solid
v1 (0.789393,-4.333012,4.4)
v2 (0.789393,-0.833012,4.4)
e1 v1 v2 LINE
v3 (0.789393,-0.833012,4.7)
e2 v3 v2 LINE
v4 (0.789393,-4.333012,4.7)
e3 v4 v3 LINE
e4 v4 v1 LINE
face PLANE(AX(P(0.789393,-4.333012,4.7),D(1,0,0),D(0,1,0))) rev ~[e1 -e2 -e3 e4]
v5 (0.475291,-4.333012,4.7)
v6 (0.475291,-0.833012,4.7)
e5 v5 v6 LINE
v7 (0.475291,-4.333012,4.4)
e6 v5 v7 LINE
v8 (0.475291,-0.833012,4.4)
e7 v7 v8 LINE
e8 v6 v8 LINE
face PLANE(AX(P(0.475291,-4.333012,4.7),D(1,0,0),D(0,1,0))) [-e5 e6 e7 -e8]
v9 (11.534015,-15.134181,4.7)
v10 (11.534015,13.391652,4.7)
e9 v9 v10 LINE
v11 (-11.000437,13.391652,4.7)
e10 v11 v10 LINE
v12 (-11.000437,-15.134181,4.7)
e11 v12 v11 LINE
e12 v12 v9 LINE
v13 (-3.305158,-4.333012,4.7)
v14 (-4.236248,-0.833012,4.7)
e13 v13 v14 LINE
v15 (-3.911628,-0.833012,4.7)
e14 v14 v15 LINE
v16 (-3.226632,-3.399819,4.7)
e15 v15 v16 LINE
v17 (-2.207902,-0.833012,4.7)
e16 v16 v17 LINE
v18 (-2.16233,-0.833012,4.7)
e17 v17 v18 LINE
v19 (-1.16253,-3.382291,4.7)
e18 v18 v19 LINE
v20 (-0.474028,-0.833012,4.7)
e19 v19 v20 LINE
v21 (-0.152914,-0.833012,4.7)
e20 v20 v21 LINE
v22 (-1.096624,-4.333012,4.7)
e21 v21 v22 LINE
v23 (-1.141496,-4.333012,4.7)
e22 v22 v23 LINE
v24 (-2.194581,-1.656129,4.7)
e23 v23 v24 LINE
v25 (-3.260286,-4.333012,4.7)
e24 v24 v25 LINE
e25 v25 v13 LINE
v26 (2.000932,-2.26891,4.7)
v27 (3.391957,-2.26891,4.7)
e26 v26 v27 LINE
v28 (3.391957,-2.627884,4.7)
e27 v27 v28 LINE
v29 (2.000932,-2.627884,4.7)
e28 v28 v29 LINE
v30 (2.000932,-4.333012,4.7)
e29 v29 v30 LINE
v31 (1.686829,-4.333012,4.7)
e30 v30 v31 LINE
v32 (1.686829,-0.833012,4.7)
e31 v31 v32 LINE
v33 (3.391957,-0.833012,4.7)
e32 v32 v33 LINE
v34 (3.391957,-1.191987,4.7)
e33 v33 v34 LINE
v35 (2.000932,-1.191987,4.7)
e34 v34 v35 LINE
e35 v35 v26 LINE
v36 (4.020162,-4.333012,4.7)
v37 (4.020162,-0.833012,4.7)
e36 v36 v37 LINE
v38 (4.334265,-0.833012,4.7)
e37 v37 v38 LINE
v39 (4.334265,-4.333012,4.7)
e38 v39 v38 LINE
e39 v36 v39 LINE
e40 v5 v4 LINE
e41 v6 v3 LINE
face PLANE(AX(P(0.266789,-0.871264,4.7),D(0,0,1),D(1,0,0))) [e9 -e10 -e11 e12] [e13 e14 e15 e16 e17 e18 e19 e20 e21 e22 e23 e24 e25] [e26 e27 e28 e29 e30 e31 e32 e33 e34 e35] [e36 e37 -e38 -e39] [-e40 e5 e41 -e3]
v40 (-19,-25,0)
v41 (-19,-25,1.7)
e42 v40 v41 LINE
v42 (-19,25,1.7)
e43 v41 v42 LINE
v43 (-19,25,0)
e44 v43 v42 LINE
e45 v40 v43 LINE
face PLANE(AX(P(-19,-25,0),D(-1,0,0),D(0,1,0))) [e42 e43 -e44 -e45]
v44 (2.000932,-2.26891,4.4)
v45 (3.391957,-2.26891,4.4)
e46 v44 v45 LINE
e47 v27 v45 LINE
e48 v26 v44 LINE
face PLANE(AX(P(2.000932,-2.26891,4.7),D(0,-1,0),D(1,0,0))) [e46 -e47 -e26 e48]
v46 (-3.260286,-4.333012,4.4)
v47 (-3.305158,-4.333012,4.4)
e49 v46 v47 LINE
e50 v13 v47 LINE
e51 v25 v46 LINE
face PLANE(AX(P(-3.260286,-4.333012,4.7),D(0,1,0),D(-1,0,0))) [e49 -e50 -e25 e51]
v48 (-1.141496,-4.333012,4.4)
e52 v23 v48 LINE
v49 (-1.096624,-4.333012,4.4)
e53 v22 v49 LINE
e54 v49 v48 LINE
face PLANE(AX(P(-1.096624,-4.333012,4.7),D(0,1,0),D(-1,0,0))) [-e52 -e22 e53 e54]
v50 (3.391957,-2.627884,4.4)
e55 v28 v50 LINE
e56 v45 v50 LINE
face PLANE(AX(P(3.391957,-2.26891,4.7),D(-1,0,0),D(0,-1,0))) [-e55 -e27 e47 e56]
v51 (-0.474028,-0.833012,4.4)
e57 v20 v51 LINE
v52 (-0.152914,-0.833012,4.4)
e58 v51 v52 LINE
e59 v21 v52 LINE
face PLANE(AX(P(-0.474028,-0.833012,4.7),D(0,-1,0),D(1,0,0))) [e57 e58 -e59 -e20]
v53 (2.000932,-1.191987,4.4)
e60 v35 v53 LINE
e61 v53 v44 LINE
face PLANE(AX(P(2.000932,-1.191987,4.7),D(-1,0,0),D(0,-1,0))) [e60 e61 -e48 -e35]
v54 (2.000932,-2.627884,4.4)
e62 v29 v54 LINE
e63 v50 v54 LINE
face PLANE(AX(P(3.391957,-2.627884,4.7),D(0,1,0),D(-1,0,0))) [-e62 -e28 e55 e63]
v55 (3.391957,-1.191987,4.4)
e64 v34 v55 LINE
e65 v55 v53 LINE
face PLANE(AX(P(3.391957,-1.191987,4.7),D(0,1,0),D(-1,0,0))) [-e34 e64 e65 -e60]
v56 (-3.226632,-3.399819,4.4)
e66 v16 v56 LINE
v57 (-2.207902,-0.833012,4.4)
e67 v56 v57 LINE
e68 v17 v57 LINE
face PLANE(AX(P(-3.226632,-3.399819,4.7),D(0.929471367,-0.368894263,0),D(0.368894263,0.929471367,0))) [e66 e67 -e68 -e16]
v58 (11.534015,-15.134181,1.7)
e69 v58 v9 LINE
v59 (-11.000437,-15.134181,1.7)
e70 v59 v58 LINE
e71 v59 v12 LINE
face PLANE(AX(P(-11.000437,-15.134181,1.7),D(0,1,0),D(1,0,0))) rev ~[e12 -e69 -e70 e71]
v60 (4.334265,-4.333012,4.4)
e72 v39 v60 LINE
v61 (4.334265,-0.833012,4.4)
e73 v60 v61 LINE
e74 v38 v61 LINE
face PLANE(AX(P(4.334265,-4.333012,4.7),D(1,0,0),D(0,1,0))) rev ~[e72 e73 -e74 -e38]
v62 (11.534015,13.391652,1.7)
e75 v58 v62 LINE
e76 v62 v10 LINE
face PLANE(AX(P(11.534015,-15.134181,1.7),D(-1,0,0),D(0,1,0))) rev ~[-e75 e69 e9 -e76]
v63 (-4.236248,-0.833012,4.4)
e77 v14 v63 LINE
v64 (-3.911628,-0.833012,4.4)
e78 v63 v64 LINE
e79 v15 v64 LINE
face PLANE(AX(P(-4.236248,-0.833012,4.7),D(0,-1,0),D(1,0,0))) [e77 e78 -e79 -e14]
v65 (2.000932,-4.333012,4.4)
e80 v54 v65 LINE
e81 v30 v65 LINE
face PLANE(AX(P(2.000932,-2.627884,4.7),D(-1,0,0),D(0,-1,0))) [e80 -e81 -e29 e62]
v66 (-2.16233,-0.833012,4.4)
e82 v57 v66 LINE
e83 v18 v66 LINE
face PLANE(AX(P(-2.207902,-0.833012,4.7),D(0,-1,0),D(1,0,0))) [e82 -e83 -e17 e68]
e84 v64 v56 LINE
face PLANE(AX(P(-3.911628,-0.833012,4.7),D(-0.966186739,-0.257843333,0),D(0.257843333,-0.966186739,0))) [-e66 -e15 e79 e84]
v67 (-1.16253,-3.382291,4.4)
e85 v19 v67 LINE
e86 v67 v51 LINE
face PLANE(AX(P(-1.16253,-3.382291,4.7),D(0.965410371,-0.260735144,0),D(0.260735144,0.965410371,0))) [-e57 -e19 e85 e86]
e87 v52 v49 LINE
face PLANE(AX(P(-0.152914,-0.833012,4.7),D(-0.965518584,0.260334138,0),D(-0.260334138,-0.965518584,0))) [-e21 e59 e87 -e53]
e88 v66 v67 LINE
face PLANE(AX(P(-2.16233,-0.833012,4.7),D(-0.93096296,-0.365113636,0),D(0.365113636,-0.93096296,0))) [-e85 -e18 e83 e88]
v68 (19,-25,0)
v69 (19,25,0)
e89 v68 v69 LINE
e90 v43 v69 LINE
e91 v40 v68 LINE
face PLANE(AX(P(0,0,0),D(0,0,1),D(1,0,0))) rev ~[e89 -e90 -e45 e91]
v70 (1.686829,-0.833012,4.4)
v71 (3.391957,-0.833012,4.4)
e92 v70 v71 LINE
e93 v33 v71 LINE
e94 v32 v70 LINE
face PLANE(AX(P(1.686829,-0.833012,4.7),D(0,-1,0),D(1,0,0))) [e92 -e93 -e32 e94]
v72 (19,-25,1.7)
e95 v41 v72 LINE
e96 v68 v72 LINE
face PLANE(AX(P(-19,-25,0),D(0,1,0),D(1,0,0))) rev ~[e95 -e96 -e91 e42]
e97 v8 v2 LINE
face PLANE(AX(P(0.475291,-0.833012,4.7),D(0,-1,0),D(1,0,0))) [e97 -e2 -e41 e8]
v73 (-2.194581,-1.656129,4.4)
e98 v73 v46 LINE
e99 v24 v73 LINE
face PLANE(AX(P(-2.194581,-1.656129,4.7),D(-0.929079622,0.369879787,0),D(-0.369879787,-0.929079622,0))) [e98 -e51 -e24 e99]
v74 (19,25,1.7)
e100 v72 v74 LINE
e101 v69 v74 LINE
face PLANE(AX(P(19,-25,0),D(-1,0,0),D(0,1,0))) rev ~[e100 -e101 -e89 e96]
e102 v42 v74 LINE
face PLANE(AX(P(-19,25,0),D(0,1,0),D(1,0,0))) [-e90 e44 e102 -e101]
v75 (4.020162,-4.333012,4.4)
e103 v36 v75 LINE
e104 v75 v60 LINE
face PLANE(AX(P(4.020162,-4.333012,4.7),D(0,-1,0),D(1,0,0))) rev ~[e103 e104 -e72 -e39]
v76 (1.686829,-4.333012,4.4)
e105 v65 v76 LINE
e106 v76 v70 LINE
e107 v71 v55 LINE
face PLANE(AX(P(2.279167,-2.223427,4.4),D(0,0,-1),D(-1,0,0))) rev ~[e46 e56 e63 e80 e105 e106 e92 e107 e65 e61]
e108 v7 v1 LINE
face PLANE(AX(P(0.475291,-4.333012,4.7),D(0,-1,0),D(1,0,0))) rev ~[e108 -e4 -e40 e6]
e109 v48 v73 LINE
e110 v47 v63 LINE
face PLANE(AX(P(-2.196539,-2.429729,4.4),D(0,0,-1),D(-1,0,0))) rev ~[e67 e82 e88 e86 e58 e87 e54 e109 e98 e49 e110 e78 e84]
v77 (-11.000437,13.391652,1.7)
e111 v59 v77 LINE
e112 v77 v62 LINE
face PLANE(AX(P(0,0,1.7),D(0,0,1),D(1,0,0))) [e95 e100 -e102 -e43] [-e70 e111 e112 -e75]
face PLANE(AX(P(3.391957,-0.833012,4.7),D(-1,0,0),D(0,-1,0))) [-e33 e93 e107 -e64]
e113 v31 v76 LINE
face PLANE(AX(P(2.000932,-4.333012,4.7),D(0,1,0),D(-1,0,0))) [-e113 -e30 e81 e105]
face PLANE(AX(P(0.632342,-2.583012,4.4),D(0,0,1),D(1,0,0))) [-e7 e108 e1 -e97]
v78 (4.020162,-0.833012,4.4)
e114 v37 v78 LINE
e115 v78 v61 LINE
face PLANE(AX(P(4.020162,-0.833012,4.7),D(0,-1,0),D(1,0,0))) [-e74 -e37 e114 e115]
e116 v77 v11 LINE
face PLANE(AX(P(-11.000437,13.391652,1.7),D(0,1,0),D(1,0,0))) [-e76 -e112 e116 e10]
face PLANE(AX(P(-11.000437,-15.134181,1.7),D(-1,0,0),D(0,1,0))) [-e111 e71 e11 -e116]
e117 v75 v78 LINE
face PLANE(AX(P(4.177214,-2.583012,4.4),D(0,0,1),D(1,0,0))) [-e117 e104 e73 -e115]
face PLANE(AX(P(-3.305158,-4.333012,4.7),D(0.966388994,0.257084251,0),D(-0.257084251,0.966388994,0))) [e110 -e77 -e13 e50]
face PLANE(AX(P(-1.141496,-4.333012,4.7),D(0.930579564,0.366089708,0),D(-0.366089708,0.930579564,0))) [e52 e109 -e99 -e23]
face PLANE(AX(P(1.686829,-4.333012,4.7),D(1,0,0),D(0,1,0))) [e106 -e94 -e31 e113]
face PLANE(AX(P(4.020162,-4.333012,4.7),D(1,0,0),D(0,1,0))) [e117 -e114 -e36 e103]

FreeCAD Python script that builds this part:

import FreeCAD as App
import Part
import Sketcher

V = App.Vector


def add_polygon(sketch, points):
    """Adds a closed chain of lines whose ends are joined by coincident constraints."""
    first, n = sketch.GeometryCount, len(points)
    for a, b in zip(points, points[1:] + points[:1]):
        sketch.addGeometry(Part.LineSegment(App.Vector(*a, 0), App.Vector(*b, 0)), False)
    for i in range(n):
        sketch.addConstraint(Sketcher.Constraint("Coincident", first + i, 2, first + (i + 1) % n, 1))

doc = App.newDocument("Part")
body = doc.addObject("PartDesign::Body", "Body")

sketch1 = body.newObject("Sketcher::SketchObject", "Sketch")
sketch1.AttachmentSupport = (doc.getObject("XY_Plane"), [""])
sketch1.MapMode = "FlatFace"
add_polygon(sketch1, [(-19, 25), (-19, -25), (19, -25), (19, 25)])
sketch1.addConstraint(Sketcher.Constraint("Vertical", 0))
sketch1.addConstraint(Sketcher.Constraint("Horizontal", 1))
sketch1.addConstraint(Sketcher.Constraint("Vertical", 2))
sketch1.addConstraint(Sketcher.Constraint("Horizontal", 3))
sketch1.addConstraint(Sketcher.Constraint("Symmetric", 0, 2, 2, 2, -1, 1))
sketch1.addConstraint(Sketcher.Constraint("DistanceX", 1, 1, 1, 2, 38.0))
sketch1.addConstraint(Sketcher.Constraint("DistanceY", 0, 2, 0, 1, 50.0))
pad1 = body.newObject("PartDesign::Pad", "Pad")
pad1.Profile = sketch1
pad1.Length = 1.7

sketch2 = body.newObject("Sketcher::SketchObject", "Sketch001")
sketch2.AttachmentSupport = (doc.getObject("XY_Plane"), [""])
sketch2.MapMode = "FlatFace"
sketch2.AttachmentOffset = App.Placement(V(0, 0, 1.7), App.Rotation())
add_polygon(sketch2, [(-11, 13), (-11, -15), (12, -15), (12, 13)])
sketch2.addConstraint(Sketcher.Constraint("Vertical", 0))
sketch2.addConstraint(Sketcher.Constraint("Horizontal", 1))
sketch2.addConstraint(Sketcher.Constraint("Vertical", 2))
sketch2.addConstraint(Sketcher.Constraint("Horizontal", 3))
sketch2.addConstraint(Sketcher.Constraint("DistanceX", 1, 1, 1, 2, 22.534452))
sketch2.addConstraint(Sketcher.Constraint("DistanceY", 0, 2, 0, 1, 28.525833))
sketch2.addConstraint(Sketcher.Constraint("DistanceY", 0, 2, -1, 1, 15.134181))
sketch2.addConstraint(Sketcher.Constraint("DistanceX", 0, 2, -1, 1, 11.000437))
pad2 = body.newObject("PartDesign::Pad", "Pad001")
pad2.Profile = sketch2
pad2.Length = 3

sketch3 = body.newObject("Sketcher::SketchObject", "Sketch002")
sketch3.AttachmentSupport = (doc.getObject("XY_Plane"), [""])
sketch3.MapMode = "FlatFace"
sketch3.AttachmentOffset = App.Placement(V(0, 0, 4.7), App.Rotation())
add_polygon(sketch3, [(-3.912, -0.833), (-4.236, -0.833), (-3.305, -4.333), (-3.26, -4.333), (-2.195, -1.656), (-1.141, -4.333), (-1.097, -4.333), (-0.153, -0.833), (-0.474, -0.833), (-1.163, -3.382), (-2.162, -0.833), (-2.208, -0.833), (-3.227, -3.4)])
add_polygon(sketch3, [(0.475, -0.833), (0.475, -4.333), (0.789, -4.333), (0.789, -0.833)])
add_polygon(sketch3, [(3.392, -0.833), (1.687, -0.833), (1.687, -4.333), (2.001, -4.333), (2.001, -2.628), (3.392, -2.628), (3.392, -2.269), (2.001, -2.269), (2.001, -1.192), (3.392, -1.192)])
add_polygon(sketch3, [(4.02, -0.833), (4.02, -4.333), (4.334, -4.333), (4.334, -0.833)])
sketch3.addConstraint(Sketcher.Constraint("Horizontal", 0))
sketch3.addConstraint(Sketcher.Constraint("Horizontal", 2))
sketch3.addConstraint(Sketcher.Constraint("Horizontal", 5))
sketch3.addConstraint(Sketcher.Constraint("Horizontal", 7))
sketch3.addConstraint(Sketcher.Constraint("Horizontal", 10))
sketch3.addConstraint(Sketcher.Constraint("Vertical", 13))
sketch3.addConstraint(Sketcher.Constraint("Horizontal", 14))
sketch3.addConstraint(Sketcher.Constraint("Vertical", 15))
sketch3.addConstraint(Sketcher.Constraint("Horizontal", 16))
sketch3.addConstraint(Sketcher.Constraint("Horizontal", 17))
sketch3.addConstraint(Sketcher.Constraint("Vertical", 18))
sketch3.addConstraint(Sketcher.Constraint("Horizontal", 19))
sketch3.addConstraint(Sketcher.Constraint("Vertical", 20))
sketch3.addConstraint(Sketcher.Constraint("Horizontal", 21))
sketch3.addConstraint(Sketcher.Constraint("Vertical", 22))
sketch3.addConstraint(Sketcher.Constraint("Horizontal", 23))
sketch3.addConstraint(Sketcher.Constraint("Vertical", 24))
sketch3.addConstraint(Sketcher.Constraint("Horizontal", 25))
sketch3.addConstraint(Sketcher.Constraint("Vertical", 26))
sketch3.addConstraint(Sketcher.Constraint("Vertical", 27))
sketch3.addConstraint(Sketcher.Constraint("Horizontal", 28))
sketch3.addConstraint(Sketcher.Constraint("Vertical", 29))
sketch3.addConstraint(Sketcher.Constraint("Horizontal", 30))
sketch3.addConstraint(Sketcher.Constraint("Horizontal", 2, 2, 4, 2))
sketch3.addConstraint(Sketcher.Constraint("Horizontal", 0, 2, 6, 2))
sketch3.addConstraint(Sketcher.Constraint("Horizontal", 7, 2, 9, 2))
sketch3.addConstraint(Sketcher.Constraint("Horizontal", 5, 2, 13, 2))
sketch3.addConstraint(Sketcher.Constraint("Horizontal", 12, 2, 15, 2))
sketch3.addConstraint(Sketcher.Constraint("Horizontal", 16, 2, 17, 2))
sketch3.addConstraint(Sketcher.Constraint("Horizontal", 14, 2, 18, 2))
sketch3.addConstraint(Sketcher.Constraint("Horizontal", 19, 2, 27, 2))
sketch3.addConstraint(Sketcher.Constraint("Horizontal", 26, 2, 29, 2))
sketch3.addConstraint(Sketcher.Constraint("Vertical", 20, 2, 23, 2))
sketch3.addConstraint(Sketcher.Constraint("Vertical", 22, 2, 25, 2))
sketch3.addConstraint(Sketcher.Constraint("Equal", 2, 5))
sketch3.addConstraint(Sketcher.Constraint("Equal", 16, 19))
sketch3.addConstraint(Sketcher.Constraint("Equal", 19, 28))
sketch3.addConstraint(Sketcher.Constraint("Equal", 17, 20))
sketch3.addConstraint(Sketcher.Constraint("Equal", 22, 26))
sketch3.addConstraint(Sketcher.Constraint("DistanceY", 13, 2, 13, 1, 3.5))
sketch3.addConstraint(Sketcher.Constraint("DistanceX", 0, 2, 0, 1, 0.324619))
sketch3.addConstraint(Sketcher.Constraint("DistanceX", 2, 1, 2, 2, 0.044872))
sketch3.addConstraint(Sketcher.Constraint("DistanceX", 17, 2, 17, 1, 1.705128))
sketch3.addConstraint(Sketcher.Constraint("DistanceX", 9, 2, 7, 2, 1.688301))
sketch3.addConstraint(Sketcher.Constraint("DistanceX", 9, 2, 8, 2, 0.9998))
sketch3.addConstraint(Sketcher.Constraint("DistanceX", 12, 2, 9, 2, 1.749299))
sketch3.addConstraint(Sketcher.Constraint("Distance", 1, 3.62173))
sketch3.addConstraint(Sketcher.Constraint("Distance", 3, 2.88122))
sketch3.addConstraint(Sketcher.Constraint("DistanceX", 7, 2, 7, 1, 0.321114))
sketch3.addConstraint(Sketcher.Constraint("DistanceX", 10, 2, 10, 1, 0.045573))
sketch3.addConstraint(Sketcher.Constraint("DistanceX", 14, 1, 14, 2, 0.314103))
sketch3.addConstraint(Sketcher.Constraint("DistanceY", 22, 1, 22, 2, 0.358974))
sketch3.addConstraint(Sketcher.Constraint("DistanceX", 1, 2, -1, 1, 3.305158))
sketch3.addConstraint(Sketcher.Constraint("DistanceX", 3, 2, -1, 1, 2.194581))
sketch3.addConstraint(Sketcher.Constraint("DistanceY", 3, 2, -1, 1, 1.656129))
sketch3.addConstraint(Sketcher.Constraint("DistanceY", 8, 2, -1, 1, 3.382291))
sketch3.addConstraint(Sketcher.Constraint("DistanceY", 11, 2, -1, 1, 3.399819))
sketch3.addConstraint(Sketcher.Constraint("DistanceX", -1, 1, 13, 2, 0.475291))
sketch3.addConstraint(Sketcher.Constraint("DistanceX", -1, 1, 17, 2, 1.686829))
sketch3.addConstraint(Sketcher.Constraint("DistanceX", 2, 2, 4, 2, 2.11879))
sketch3.addConstraint(Sketcher.Constraint("DistanceX", 11, 2, 3, 2, 1.032051))
sketch3.addConstraint(Sketcher.Constraint("DistanceX", 19, 2, 27, 2, 2.019231))
pocket1 = body.newObject("PartDesign::Pocket", "Pocket")
pocket1.Profile = sketch3
pocket1.Length = 0.3

doc.recompute()
